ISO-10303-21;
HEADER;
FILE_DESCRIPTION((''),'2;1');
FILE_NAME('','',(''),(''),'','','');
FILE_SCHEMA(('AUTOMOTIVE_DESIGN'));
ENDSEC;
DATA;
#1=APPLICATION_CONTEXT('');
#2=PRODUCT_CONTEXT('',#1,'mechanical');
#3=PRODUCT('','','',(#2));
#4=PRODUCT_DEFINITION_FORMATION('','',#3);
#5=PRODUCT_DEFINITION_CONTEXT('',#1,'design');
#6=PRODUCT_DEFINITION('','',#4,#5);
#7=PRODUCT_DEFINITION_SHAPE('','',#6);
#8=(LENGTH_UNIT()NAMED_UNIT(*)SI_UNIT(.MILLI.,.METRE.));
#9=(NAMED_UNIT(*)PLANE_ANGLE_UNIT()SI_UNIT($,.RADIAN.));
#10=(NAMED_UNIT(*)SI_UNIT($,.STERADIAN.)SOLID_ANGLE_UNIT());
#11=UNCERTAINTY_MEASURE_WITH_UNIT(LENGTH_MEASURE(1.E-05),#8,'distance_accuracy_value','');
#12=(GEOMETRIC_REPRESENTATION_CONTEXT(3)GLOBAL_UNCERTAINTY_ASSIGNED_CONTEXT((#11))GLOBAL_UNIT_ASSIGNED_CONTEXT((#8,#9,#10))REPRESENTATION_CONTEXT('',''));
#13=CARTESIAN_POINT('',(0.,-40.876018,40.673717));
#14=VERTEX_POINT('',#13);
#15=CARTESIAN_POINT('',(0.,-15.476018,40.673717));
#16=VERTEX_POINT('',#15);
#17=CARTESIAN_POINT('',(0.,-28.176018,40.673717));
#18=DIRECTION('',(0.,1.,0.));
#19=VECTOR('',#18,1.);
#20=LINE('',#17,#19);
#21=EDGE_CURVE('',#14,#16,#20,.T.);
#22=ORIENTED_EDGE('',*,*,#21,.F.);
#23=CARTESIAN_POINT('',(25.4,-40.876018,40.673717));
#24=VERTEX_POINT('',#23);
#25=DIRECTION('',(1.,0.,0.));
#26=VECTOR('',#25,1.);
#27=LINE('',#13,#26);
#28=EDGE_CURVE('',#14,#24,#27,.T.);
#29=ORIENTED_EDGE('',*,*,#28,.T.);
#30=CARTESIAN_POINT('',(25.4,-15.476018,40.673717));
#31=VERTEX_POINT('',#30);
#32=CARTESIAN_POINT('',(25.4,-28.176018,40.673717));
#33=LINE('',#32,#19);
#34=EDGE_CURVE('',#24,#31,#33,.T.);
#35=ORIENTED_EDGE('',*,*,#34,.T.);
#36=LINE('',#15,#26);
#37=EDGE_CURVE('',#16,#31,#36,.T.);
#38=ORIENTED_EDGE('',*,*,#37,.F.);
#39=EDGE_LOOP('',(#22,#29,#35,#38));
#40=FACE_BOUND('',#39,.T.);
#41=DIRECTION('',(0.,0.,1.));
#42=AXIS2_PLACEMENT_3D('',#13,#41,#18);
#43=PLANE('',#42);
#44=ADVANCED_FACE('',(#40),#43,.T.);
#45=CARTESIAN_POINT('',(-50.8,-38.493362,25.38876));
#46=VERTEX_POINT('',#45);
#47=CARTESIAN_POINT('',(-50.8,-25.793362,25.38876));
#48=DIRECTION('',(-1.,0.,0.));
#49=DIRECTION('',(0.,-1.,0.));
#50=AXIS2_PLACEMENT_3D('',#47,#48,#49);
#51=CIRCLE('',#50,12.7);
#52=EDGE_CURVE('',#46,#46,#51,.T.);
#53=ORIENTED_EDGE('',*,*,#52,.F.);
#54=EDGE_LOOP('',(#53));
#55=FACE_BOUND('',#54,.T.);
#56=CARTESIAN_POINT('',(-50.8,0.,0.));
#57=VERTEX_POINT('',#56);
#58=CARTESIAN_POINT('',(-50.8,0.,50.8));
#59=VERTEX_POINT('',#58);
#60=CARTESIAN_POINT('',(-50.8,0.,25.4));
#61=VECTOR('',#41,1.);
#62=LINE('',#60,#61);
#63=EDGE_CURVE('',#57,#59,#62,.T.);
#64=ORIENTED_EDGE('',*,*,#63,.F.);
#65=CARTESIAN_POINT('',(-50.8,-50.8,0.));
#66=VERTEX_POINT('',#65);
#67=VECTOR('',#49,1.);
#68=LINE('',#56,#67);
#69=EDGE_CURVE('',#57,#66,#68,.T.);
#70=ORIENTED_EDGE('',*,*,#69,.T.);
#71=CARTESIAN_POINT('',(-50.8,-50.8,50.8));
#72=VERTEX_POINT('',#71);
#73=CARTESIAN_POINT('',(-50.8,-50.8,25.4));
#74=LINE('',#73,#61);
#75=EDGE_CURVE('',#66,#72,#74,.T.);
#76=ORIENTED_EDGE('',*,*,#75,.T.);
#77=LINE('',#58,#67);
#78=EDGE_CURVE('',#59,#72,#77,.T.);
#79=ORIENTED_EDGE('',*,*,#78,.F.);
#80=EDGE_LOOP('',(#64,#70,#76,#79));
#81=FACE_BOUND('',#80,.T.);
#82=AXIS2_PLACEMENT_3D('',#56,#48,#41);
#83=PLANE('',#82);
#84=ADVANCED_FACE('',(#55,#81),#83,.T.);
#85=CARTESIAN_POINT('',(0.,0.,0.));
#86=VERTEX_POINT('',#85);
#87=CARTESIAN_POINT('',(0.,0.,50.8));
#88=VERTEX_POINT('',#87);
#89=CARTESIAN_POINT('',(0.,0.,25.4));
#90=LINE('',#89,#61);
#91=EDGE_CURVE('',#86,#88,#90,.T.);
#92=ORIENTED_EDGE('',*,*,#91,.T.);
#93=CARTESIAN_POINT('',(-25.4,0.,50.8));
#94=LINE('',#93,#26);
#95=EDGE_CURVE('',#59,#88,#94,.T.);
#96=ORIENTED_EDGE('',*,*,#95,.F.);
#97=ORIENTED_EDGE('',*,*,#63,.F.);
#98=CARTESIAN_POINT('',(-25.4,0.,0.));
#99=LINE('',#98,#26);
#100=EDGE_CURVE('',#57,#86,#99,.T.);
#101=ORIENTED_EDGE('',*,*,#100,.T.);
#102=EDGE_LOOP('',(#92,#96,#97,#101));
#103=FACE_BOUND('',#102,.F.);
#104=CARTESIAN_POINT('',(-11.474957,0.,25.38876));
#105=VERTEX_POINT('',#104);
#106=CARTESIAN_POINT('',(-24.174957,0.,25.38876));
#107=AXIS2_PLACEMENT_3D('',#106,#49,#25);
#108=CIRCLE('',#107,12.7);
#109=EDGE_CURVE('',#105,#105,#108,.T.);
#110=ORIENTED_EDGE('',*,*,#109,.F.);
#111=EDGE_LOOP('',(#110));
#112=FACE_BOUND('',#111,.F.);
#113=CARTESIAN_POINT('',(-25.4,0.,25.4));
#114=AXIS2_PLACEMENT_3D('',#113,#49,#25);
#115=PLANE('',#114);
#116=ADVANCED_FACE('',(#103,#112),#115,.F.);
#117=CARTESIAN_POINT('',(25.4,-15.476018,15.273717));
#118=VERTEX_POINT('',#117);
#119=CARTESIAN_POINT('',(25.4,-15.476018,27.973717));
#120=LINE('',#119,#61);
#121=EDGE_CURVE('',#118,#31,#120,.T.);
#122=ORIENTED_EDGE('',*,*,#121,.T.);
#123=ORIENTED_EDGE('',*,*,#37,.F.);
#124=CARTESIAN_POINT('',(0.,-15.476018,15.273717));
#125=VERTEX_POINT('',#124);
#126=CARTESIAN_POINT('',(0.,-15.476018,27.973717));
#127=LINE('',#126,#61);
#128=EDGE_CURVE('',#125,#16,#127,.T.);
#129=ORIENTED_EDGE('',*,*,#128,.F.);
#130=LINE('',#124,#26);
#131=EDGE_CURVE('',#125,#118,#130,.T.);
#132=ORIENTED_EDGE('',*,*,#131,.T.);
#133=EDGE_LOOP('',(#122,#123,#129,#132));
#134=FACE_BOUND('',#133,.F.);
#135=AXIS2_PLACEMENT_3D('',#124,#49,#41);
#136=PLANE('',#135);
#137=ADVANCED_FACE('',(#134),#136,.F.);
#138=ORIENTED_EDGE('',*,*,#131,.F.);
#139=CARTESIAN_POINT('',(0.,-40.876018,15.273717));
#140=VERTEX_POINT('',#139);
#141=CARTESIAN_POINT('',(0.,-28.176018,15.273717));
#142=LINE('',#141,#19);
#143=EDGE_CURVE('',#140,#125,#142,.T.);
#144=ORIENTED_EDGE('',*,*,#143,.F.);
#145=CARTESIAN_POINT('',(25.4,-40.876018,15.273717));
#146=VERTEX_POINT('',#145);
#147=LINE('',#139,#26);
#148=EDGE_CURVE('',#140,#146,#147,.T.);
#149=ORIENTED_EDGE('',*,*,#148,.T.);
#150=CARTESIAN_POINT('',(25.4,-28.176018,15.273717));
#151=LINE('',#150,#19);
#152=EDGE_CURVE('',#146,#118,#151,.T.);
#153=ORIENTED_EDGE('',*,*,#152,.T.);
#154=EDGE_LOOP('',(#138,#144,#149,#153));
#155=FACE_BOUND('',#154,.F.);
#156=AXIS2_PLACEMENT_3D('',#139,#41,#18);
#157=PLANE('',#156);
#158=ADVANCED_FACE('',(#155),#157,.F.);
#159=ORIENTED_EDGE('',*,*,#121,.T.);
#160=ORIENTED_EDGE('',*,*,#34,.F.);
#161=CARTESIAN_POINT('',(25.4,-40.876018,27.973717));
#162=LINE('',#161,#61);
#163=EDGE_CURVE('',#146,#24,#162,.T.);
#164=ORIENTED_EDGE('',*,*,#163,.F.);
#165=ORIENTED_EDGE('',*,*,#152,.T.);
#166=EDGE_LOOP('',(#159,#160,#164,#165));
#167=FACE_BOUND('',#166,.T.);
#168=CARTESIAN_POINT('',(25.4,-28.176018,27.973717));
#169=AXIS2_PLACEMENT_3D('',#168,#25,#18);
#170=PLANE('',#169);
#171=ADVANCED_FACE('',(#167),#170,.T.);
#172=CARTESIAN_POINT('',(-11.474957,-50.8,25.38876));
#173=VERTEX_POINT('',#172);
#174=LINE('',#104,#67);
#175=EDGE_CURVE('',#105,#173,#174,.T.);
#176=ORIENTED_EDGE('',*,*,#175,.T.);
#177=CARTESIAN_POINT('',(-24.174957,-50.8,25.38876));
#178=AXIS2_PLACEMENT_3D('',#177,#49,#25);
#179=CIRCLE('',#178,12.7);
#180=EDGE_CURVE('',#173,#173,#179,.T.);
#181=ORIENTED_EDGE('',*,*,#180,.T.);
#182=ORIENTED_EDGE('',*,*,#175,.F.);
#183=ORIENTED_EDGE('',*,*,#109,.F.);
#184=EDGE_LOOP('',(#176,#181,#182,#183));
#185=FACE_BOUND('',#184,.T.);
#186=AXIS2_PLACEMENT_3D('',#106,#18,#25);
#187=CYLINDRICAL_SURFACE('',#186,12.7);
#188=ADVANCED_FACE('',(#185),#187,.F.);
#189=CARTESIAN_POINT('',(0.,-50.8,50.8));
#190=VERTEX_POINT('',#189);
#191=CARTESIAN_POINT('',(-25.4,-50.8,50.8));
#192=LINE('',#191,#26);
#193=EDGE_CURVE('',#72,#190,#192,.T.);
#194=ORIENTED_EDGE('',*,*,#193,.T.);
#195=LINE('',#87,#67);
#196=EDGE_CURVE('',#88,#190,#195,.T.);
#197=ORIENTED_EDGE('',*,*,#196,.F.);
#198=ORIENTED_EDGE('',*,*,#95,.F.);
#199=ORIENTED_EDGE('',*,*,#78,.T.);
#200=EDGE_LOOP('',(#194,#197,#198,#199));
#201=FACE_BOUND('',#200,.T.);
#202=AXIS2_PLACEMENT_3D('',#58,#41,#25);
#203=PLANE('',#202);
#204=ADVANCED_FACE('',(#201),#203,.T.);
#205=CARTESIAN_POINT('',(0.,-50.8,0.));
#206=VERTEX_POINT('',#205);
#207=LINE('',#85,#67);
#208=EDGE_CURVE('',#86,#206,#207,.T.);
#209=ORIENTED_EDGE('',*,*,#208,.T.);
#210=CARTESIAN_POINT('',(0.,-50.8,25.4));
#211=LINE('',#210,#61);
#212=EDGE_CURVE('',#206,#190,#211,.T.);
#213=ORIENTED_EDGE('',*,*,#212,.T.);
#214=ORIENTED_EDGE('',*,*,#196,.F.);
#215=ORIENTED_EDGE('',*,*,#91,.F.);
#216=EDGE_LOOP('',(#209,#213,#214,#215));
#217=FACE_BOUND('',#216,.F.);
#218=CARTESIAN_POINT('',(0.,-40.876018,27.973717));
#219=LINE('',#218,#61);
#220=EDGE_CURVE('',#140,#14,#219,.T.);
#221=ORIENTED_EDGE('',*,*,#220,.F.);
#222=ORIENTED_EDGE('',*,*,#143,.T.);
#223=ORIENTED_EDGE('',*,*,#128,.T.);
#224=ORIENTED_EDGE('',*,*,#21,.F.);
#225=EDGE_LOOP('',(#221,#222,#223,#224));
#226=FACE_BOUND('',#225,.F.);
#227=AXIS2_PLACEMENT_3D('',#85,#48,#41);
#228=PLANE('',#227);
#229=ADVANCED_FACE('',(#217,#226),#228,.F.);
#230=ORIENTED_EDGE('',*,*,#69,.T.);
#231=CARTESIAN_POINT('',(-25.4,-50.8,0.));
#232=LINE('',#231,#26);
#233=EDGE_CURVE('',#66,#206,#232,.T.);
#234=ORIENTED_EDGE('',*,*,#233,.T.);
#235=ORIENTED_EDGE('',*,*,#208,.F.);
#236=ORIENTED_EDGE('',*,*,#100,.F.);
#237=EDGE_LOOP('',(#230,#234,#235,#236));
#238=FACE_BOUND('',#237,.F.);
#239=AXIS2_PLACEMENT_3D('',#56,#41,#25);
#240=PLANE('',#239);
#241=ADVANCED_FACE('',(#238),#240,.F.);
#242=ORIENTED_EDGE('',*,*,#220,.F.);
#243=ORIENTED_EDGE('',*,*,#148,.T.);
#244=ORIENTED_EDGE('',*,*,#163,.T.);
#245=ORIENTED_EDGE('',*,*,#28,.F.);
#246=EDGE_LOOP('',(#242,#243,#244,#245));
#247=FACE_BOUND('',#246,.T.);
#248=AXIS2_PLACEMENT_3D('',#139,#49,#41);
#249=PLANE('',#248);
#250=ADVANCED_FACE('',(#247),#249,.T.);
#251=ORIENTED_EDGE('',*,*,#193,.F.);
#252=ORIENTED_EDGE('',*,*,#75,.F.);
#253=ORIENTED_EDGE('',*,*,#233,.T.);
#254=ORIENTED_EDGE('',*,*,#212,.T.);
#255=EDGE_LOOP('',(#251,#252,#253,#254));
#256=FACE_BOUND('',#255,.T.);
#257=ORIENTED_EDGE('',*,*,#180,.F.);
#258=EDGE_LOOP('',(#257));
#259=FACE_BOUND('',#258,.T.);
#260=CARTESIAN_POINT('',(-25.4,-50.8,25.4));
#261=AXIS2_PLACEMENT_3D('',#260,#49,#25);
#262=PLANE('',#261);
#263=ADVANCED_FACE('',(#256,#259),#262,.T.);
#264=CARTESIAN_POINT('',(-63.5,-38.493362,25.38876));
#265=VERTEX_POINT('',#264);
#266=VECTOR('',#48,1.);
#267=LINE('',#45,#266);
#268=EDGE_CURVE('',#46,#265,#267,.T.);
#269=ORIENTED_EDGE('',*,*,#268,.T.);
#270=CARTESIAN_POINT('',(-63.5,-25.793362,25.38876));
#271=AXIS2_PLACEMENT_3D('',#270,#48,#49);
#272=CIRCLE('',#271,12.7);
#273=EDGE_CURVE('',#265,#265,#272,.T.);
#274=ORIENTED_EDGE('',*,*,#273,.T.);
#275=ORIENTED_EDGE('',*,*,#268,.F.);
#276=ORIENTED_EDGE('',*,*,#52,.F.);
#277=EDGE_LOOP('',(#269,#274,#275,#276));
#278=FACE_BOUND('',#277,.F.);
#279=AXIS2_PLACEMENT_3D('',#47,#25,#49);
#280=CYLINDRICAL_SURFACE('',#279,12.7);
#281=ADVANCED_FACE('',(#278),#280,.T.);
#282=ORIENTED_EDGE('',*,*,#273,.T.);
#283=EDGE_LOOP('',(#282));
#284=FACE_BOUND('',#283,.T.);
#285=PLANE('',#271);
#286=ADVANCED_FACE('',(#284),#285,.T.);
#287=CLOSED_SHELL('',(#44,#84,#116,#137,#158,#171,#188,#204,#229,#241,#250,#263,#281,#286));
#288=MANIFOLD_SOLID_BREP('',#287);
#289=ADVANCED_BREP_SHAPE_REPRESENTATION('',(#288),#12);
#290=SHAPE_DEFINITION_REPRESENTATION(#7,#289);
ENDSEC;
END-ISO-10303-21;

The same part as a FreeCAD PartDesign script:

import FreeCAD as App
import Part
import Sketcher
from FreeCAD import Vector
Q = App.Units.Quantity


def add_polygon(sketch, points):
    """Adds a closed chain of lines whose ends are joined by coincident constraints."""
    first, n = sketch.GeometryCount, len(points)
    for a, b in zip(points, points[1:] + points[:1]):
        sketch.addGeometry(Part.LineSegment(App.Vector(*a, 0), App.Vector(*b, 0)), False)
    for i in range(n):
        sketch.addConstraint(Sketcher.Constraint("Coincident", first + i, 2, first + (i + 1) % n, 1))

doc = App.newDocument("Part")
body = doc.addObject("PartDesign::Body", "Body")

# Sketch on XZ plane
sketch1 = body.newObject("Sketcher::SketchObject", "Sketch")
sketch1.AttachmentSupport = (doc.getObject("XZ_Plane"), [""])
sketch1.MapMode = "FlatFace"
add_polygon(sketch1, [(-51, 51), (-51, 0), (0, 0), (0, 51)])  # lines 0-3
sketch1.addConstraint([
    Sketcher.Constraint("Vertical", 0),
    Sketcher.Constraint("Horizontal", 1),
    Sketcher.Constraint("Vertical", 2),
    Sketcher.Constraint("Horizontal", 3),
    Sketcher.Constraint("Coincident", 1, 2, -1, 1),
    Sketcher.Constraint("Equal", 3, 0),
    Sketcher.Constraint("DistanceX", 1, 1, 1, 2, Q("2 in")),
])
pad1 = body.newObject("PartDesign::Pad", "Pad")
pad1.Profile = sketch1
pad1.Length = Q("2 in")

# Sketch on XZ plane
sketch2 = body.newObject("Sketcher::SketchObject", "Sketch001")
sketch2.AttachmentSupport = (doc.getObject("XZ_Plane"), [""])
sketch2.MapMode = "FlatFace"
sketch2.addGeometry(Part.Circle(Vector(-24, 25, 0), Vector(0, 0, 1), 13), False)
sketch2.addConstraint([
    Sketcher.Constraint("Diameter", 0, Q("1 in")),
    Sketcher.Constraint("DistanceY", -1, 1, 0, 3, Q("25.38876 mm")),
    Sketcher.Constraint("DistanceX", 0, 3, -1, 1, Q("24.174957 mm")),
])
pocket1 = body.newObject("PartDesign::Pocket", "Pocket")
pocket1.Profile = sketch2
pocket1.Length = Q("2 in")
pocket1.Reversed = True

# Sketch on YZ plane
sketch3 = body.newObject("Sketcher::SketchObject", "Sketch002")
sketch3.AttachmentSupport = (doc.getObject("YZ_Plane"), [""])
sketch3.MapMode = "FlatFace"
sketch3.AttachmentOffset = App.Placement(Vector(0, 0, -2 * 25.4), App.Rotation())
sketch3.addGeometry(Part.Circle(Vector(-26, 25, 0), Vector(0, 0, 1), 13), False)
sketch3.addConstraint([
    Sketcher.Constraint("Diameter", 0, Q("1 in")),
    Sketcher.Constraint("DistanceX", 0, 3, -1, 1, Q("25.793362 mm")),
    Sketcher.Constraint("DistanceY", -1, 1, 0, 3, Q("25.38876 mm")),
])
pad2 = body.newObject("PartDesign::Pad", "Pad001")
pad2.Profile = sketch3
pad2.Length = Q("0.5 in")
pad2.Reversed = True

# Sketch on YZ plane
sketch4 = body.newObject("Sketcher::SketchObject", "Sketch003")
sketch4.AttachmentSupport = (doc.getObject("YZ_Plane"), [""])
sketch4.MapMode = "FlatFace"
add_polygon(sketch4, [(-41, 41), (-41, 15), (-15, 15), (-15, 41)])  # lines 0-3
sketch4.addConstraint([
    Sketcher.Constraint("Vertical", 0),
    Sketcher.Constraint("Horizontal", 1),
    Sketcher.Constraint("Vertical", 2),
    Sketcher.Constraint("Horizontal", 3),
    Sketcher.Constraint("Equal", 3, 0),
    Sketcher.Constraint("DistanceX", 1, 1, 1, 2, Q("1 in")),
    Sketcher.Constraint("DistanceX", 0, 2, -1, 1, Q("40.876018 mm")),
    Sketcher.Constraint("DistanceY", -1, 1, 0, 2, Q("15.273717 mm")),
])
pad3 = body.newObject("PartDesign::Pad", "Pad002")
pad3.Profile = sketch4
pad3.Length = Q("1 in")

doc.recompute()
